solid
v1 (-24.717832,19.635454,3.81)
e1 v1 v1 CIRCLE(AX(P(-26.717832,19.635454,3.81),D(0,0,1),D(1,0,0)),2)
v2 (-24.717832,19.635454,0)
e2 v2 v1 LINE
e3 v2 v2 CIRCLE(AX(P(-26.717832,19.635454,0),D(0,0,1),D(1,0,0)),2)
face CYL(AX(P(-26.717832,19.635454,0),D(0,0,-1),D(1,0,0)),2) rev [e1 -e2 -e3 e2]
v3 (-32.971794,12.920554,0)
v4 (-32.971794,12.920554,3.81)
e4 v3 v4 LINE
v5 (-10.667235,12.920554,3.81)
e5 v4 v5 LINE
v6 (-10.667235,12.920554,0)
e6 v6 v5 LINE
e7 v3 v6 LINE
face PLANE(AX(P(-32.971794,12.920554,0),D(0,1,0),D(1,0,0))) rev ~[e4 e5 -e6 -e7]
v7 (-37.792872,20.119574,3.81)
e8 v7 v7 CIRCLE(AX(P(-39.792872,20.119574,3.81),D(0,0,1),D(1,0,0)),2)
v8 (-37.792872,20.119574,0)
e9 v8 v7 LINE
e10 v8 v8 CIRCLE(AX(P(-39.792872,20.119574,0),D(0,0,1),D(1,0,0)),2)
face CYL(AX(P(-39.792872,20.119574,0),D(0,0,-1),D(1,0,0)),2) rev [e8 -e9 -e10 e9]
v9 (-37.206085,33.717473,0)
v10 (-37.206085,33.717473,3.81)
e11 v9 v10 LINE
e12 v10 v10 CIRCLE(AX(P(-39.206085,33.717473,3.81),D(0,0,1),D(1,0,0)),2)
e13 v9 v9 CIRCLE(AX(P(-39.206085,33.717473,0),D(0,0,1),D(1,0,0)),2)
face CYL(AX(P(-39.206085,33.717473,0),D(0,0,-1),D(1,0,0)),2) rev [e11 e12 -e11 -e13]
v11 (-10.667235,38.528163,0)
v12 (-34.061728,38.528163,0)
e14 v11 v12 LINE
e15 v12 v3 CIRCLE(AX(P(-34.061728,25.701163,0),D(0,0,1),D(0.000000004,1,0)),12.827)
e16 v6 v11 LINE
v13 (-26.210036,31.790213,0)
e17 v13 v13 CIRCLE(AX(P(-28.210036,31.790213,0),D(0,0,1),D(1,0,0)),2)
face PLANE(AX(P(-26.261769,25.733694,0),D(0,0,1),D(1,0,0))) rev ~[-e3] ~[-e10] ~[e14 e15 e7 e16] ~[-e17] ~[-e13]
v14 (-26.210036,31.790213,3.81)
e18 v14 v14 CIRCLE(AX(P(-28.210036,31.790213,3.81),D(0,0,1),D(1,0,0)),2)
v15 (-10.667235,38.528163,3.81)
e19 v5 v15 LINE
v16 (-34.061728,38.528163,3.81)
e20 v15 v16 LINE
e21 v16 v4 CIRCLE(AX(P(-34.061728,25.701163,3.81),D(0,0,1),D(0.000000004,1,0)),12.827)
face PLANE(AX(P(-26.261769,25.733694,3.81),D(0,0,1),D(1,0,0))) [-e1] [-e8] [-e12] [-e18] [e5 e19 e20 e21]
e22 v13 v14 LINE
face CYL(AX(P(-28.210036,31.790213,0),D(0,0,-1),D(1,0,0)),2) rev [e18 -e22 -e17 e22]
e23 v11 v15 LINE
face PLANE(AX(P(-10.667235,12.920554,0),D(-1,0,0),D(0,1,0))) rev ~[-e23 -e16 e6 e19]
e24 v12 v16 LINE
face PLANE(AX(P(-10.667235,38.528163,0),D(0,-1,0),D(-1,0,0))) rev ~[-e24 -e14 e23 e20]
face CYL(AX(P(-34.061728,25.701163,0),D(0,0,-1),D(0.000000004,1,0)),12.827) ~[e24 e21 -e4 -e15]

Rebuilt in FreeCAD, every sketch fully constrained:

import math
import FreeCAD as App
import Part
import Sketcher
Q = App.Units.Quantity

doc = App.newDocument("Part")
body = doc.addObject("PartDesign::Body", "Body")

# Sketch on XY plane
sketch1 = doc.addObject("Sketcher::SketchObject", "Sketch")
body.addObject(sketch1)
sketch1.AttachmentSupport = (doc.XY_Plane, [""])
sketch1.MapMode = "FlatFace"
sketch1.addGeometry(Part.LineSegment(App.Vector(-10.7, 38.5, 0), App.Vector(-34.1, 38.5, 0)), False)
sketch1.addGeometry(Part.ArcOfCircle(Part.Circle(App.Vector(-34.1, 25.7, 0), App.Vector(0, 0, 1), 12.8), math.radians(90), math.radians(275)), False)
sketch1.addGeometry(Part.LineSegment(App.Vector(-33, 12.9, 0), App.Vector(-10.7, 12.9, 0)), False)
sketch1.addGeometry(Part.LineSegment(App.Vector(-10.7, 12.9, 0), App.Vector(-10.7, 38.5, 0)), False)
sketch1.addGeometry(Part.Circle(App.Vector(-39.8, 20.1, 0), App.Vector(0, 0, 1), 2), False)
sketch1.addGeometry(Part.Circle(App.Vector(-26.7, 19.6, 0), App.Vector(0, 0, 1), 2), False)
sketch1.addGeometry(Part.Circle(App.Vector(-39.2, 33.7, 0), App.Vector(0, 0, 1), 2), False)
sketch1.addGeometry(Part.Circle(App.Vector(-28.2, 31.8, 0), App.Vector(0, 0, 1), 2), False)
sketch1.addConstraint(Sketcher.Constraint("Tangent", 0, 2, 1, 1))
sketch1.addConstraint(Sketcher.Constraint("Coincident", 1, 2, 2, 1))
sketch1.addConstraint(Sketcher.Constraint("Coincident", 2, 2, 3, 1))
sketch1.addConstraint(Sketcher.Constraint("Coincident", 3, 2, 0, 1))
sketch1.addConstraint(Sketcher.Constraint("Horizontal", 0))
sketch1.addConstraint(Sketcher.Constraint("Horizontal", 2))
sketch1.addConstraint(Sketcher.Constraint("Vertical", 3))
sketch1.addConstraint(Sketcher.Constraint("Equal", 4, 5))
sketch1.addConstraint(Sketcher.Constraint("Equal", 5, 6))
sketch1.addConstraint(Sketcher.Constraint("Equal", 6, 7))
sketch1.addConstraint(Sketcher.Constraint("Radius", 1, Q("0.505 in")))
sketch1.addConstraint(Sketcher.Constraint("Diameter", 4, Q("4 mm")))
sketch1.addConstraint(Sketcher.Constraint("DistanceY", 1, 2, 7, 3, Q("0.7429 in")))
sketch1.addConstraint(Sketcher.Constraint("DistanceX", 2, 1, 2, 2, Q("22.304559 mm")))
sketch1.addConstraint(Sketcher.Constraint("DistanceY", 3, 1, 3, 2, Q("25.607609 mm")))
sketch1.addConstraint(Sketcher.Constraint("DistanceY", 4, 3, 6, 3, Q("13.597899 mm")))
sketch1.addConstraint(Sketcher.Constraint("DistanceY", 1, 2, 5, 3, Q("6.7149 mm")))
sketch1.addConstraint(Sketcher.Constraint("DistanceX", 7, 3, 2, 2, Q("17.542801 mm")))
sketch1.addConstraint(Sketcher.Constraint("DistanceX", 1, 3, -1, 1, Q("34.061728 mm")))
sketch1.addConstraint(Sketcher.Constraint("DistanceY", 4, 3, 1, 3, Q("5.581589 mm")))
sketch1.addConstraint(Sketcher.Constraint("DistanceX", 4, 3, 5, 3, Q("13.07504 mm")))
sketch1.addConstraint(Sketcher.Constraint("DistanceX", 6, 3, 7, 3, Q("10.996049 mm")))
sketch1.addConstraint(Sketcher.Constraint("DistanceX", 1, 2, 5, 3, Q("6.253962 mm")))
sketch1.addConstraint(Sketcher.Constraint("DistanceY", -1, 1, 1, 3, Q("25.701163 mm")))
pad1 = doc.addObject("PartDesign::Pad", "Pad")
body.addObject(pad1)
pad1.Profile = sketch1
pad1.Length = Q("0.15 in")

doc.recompute()
